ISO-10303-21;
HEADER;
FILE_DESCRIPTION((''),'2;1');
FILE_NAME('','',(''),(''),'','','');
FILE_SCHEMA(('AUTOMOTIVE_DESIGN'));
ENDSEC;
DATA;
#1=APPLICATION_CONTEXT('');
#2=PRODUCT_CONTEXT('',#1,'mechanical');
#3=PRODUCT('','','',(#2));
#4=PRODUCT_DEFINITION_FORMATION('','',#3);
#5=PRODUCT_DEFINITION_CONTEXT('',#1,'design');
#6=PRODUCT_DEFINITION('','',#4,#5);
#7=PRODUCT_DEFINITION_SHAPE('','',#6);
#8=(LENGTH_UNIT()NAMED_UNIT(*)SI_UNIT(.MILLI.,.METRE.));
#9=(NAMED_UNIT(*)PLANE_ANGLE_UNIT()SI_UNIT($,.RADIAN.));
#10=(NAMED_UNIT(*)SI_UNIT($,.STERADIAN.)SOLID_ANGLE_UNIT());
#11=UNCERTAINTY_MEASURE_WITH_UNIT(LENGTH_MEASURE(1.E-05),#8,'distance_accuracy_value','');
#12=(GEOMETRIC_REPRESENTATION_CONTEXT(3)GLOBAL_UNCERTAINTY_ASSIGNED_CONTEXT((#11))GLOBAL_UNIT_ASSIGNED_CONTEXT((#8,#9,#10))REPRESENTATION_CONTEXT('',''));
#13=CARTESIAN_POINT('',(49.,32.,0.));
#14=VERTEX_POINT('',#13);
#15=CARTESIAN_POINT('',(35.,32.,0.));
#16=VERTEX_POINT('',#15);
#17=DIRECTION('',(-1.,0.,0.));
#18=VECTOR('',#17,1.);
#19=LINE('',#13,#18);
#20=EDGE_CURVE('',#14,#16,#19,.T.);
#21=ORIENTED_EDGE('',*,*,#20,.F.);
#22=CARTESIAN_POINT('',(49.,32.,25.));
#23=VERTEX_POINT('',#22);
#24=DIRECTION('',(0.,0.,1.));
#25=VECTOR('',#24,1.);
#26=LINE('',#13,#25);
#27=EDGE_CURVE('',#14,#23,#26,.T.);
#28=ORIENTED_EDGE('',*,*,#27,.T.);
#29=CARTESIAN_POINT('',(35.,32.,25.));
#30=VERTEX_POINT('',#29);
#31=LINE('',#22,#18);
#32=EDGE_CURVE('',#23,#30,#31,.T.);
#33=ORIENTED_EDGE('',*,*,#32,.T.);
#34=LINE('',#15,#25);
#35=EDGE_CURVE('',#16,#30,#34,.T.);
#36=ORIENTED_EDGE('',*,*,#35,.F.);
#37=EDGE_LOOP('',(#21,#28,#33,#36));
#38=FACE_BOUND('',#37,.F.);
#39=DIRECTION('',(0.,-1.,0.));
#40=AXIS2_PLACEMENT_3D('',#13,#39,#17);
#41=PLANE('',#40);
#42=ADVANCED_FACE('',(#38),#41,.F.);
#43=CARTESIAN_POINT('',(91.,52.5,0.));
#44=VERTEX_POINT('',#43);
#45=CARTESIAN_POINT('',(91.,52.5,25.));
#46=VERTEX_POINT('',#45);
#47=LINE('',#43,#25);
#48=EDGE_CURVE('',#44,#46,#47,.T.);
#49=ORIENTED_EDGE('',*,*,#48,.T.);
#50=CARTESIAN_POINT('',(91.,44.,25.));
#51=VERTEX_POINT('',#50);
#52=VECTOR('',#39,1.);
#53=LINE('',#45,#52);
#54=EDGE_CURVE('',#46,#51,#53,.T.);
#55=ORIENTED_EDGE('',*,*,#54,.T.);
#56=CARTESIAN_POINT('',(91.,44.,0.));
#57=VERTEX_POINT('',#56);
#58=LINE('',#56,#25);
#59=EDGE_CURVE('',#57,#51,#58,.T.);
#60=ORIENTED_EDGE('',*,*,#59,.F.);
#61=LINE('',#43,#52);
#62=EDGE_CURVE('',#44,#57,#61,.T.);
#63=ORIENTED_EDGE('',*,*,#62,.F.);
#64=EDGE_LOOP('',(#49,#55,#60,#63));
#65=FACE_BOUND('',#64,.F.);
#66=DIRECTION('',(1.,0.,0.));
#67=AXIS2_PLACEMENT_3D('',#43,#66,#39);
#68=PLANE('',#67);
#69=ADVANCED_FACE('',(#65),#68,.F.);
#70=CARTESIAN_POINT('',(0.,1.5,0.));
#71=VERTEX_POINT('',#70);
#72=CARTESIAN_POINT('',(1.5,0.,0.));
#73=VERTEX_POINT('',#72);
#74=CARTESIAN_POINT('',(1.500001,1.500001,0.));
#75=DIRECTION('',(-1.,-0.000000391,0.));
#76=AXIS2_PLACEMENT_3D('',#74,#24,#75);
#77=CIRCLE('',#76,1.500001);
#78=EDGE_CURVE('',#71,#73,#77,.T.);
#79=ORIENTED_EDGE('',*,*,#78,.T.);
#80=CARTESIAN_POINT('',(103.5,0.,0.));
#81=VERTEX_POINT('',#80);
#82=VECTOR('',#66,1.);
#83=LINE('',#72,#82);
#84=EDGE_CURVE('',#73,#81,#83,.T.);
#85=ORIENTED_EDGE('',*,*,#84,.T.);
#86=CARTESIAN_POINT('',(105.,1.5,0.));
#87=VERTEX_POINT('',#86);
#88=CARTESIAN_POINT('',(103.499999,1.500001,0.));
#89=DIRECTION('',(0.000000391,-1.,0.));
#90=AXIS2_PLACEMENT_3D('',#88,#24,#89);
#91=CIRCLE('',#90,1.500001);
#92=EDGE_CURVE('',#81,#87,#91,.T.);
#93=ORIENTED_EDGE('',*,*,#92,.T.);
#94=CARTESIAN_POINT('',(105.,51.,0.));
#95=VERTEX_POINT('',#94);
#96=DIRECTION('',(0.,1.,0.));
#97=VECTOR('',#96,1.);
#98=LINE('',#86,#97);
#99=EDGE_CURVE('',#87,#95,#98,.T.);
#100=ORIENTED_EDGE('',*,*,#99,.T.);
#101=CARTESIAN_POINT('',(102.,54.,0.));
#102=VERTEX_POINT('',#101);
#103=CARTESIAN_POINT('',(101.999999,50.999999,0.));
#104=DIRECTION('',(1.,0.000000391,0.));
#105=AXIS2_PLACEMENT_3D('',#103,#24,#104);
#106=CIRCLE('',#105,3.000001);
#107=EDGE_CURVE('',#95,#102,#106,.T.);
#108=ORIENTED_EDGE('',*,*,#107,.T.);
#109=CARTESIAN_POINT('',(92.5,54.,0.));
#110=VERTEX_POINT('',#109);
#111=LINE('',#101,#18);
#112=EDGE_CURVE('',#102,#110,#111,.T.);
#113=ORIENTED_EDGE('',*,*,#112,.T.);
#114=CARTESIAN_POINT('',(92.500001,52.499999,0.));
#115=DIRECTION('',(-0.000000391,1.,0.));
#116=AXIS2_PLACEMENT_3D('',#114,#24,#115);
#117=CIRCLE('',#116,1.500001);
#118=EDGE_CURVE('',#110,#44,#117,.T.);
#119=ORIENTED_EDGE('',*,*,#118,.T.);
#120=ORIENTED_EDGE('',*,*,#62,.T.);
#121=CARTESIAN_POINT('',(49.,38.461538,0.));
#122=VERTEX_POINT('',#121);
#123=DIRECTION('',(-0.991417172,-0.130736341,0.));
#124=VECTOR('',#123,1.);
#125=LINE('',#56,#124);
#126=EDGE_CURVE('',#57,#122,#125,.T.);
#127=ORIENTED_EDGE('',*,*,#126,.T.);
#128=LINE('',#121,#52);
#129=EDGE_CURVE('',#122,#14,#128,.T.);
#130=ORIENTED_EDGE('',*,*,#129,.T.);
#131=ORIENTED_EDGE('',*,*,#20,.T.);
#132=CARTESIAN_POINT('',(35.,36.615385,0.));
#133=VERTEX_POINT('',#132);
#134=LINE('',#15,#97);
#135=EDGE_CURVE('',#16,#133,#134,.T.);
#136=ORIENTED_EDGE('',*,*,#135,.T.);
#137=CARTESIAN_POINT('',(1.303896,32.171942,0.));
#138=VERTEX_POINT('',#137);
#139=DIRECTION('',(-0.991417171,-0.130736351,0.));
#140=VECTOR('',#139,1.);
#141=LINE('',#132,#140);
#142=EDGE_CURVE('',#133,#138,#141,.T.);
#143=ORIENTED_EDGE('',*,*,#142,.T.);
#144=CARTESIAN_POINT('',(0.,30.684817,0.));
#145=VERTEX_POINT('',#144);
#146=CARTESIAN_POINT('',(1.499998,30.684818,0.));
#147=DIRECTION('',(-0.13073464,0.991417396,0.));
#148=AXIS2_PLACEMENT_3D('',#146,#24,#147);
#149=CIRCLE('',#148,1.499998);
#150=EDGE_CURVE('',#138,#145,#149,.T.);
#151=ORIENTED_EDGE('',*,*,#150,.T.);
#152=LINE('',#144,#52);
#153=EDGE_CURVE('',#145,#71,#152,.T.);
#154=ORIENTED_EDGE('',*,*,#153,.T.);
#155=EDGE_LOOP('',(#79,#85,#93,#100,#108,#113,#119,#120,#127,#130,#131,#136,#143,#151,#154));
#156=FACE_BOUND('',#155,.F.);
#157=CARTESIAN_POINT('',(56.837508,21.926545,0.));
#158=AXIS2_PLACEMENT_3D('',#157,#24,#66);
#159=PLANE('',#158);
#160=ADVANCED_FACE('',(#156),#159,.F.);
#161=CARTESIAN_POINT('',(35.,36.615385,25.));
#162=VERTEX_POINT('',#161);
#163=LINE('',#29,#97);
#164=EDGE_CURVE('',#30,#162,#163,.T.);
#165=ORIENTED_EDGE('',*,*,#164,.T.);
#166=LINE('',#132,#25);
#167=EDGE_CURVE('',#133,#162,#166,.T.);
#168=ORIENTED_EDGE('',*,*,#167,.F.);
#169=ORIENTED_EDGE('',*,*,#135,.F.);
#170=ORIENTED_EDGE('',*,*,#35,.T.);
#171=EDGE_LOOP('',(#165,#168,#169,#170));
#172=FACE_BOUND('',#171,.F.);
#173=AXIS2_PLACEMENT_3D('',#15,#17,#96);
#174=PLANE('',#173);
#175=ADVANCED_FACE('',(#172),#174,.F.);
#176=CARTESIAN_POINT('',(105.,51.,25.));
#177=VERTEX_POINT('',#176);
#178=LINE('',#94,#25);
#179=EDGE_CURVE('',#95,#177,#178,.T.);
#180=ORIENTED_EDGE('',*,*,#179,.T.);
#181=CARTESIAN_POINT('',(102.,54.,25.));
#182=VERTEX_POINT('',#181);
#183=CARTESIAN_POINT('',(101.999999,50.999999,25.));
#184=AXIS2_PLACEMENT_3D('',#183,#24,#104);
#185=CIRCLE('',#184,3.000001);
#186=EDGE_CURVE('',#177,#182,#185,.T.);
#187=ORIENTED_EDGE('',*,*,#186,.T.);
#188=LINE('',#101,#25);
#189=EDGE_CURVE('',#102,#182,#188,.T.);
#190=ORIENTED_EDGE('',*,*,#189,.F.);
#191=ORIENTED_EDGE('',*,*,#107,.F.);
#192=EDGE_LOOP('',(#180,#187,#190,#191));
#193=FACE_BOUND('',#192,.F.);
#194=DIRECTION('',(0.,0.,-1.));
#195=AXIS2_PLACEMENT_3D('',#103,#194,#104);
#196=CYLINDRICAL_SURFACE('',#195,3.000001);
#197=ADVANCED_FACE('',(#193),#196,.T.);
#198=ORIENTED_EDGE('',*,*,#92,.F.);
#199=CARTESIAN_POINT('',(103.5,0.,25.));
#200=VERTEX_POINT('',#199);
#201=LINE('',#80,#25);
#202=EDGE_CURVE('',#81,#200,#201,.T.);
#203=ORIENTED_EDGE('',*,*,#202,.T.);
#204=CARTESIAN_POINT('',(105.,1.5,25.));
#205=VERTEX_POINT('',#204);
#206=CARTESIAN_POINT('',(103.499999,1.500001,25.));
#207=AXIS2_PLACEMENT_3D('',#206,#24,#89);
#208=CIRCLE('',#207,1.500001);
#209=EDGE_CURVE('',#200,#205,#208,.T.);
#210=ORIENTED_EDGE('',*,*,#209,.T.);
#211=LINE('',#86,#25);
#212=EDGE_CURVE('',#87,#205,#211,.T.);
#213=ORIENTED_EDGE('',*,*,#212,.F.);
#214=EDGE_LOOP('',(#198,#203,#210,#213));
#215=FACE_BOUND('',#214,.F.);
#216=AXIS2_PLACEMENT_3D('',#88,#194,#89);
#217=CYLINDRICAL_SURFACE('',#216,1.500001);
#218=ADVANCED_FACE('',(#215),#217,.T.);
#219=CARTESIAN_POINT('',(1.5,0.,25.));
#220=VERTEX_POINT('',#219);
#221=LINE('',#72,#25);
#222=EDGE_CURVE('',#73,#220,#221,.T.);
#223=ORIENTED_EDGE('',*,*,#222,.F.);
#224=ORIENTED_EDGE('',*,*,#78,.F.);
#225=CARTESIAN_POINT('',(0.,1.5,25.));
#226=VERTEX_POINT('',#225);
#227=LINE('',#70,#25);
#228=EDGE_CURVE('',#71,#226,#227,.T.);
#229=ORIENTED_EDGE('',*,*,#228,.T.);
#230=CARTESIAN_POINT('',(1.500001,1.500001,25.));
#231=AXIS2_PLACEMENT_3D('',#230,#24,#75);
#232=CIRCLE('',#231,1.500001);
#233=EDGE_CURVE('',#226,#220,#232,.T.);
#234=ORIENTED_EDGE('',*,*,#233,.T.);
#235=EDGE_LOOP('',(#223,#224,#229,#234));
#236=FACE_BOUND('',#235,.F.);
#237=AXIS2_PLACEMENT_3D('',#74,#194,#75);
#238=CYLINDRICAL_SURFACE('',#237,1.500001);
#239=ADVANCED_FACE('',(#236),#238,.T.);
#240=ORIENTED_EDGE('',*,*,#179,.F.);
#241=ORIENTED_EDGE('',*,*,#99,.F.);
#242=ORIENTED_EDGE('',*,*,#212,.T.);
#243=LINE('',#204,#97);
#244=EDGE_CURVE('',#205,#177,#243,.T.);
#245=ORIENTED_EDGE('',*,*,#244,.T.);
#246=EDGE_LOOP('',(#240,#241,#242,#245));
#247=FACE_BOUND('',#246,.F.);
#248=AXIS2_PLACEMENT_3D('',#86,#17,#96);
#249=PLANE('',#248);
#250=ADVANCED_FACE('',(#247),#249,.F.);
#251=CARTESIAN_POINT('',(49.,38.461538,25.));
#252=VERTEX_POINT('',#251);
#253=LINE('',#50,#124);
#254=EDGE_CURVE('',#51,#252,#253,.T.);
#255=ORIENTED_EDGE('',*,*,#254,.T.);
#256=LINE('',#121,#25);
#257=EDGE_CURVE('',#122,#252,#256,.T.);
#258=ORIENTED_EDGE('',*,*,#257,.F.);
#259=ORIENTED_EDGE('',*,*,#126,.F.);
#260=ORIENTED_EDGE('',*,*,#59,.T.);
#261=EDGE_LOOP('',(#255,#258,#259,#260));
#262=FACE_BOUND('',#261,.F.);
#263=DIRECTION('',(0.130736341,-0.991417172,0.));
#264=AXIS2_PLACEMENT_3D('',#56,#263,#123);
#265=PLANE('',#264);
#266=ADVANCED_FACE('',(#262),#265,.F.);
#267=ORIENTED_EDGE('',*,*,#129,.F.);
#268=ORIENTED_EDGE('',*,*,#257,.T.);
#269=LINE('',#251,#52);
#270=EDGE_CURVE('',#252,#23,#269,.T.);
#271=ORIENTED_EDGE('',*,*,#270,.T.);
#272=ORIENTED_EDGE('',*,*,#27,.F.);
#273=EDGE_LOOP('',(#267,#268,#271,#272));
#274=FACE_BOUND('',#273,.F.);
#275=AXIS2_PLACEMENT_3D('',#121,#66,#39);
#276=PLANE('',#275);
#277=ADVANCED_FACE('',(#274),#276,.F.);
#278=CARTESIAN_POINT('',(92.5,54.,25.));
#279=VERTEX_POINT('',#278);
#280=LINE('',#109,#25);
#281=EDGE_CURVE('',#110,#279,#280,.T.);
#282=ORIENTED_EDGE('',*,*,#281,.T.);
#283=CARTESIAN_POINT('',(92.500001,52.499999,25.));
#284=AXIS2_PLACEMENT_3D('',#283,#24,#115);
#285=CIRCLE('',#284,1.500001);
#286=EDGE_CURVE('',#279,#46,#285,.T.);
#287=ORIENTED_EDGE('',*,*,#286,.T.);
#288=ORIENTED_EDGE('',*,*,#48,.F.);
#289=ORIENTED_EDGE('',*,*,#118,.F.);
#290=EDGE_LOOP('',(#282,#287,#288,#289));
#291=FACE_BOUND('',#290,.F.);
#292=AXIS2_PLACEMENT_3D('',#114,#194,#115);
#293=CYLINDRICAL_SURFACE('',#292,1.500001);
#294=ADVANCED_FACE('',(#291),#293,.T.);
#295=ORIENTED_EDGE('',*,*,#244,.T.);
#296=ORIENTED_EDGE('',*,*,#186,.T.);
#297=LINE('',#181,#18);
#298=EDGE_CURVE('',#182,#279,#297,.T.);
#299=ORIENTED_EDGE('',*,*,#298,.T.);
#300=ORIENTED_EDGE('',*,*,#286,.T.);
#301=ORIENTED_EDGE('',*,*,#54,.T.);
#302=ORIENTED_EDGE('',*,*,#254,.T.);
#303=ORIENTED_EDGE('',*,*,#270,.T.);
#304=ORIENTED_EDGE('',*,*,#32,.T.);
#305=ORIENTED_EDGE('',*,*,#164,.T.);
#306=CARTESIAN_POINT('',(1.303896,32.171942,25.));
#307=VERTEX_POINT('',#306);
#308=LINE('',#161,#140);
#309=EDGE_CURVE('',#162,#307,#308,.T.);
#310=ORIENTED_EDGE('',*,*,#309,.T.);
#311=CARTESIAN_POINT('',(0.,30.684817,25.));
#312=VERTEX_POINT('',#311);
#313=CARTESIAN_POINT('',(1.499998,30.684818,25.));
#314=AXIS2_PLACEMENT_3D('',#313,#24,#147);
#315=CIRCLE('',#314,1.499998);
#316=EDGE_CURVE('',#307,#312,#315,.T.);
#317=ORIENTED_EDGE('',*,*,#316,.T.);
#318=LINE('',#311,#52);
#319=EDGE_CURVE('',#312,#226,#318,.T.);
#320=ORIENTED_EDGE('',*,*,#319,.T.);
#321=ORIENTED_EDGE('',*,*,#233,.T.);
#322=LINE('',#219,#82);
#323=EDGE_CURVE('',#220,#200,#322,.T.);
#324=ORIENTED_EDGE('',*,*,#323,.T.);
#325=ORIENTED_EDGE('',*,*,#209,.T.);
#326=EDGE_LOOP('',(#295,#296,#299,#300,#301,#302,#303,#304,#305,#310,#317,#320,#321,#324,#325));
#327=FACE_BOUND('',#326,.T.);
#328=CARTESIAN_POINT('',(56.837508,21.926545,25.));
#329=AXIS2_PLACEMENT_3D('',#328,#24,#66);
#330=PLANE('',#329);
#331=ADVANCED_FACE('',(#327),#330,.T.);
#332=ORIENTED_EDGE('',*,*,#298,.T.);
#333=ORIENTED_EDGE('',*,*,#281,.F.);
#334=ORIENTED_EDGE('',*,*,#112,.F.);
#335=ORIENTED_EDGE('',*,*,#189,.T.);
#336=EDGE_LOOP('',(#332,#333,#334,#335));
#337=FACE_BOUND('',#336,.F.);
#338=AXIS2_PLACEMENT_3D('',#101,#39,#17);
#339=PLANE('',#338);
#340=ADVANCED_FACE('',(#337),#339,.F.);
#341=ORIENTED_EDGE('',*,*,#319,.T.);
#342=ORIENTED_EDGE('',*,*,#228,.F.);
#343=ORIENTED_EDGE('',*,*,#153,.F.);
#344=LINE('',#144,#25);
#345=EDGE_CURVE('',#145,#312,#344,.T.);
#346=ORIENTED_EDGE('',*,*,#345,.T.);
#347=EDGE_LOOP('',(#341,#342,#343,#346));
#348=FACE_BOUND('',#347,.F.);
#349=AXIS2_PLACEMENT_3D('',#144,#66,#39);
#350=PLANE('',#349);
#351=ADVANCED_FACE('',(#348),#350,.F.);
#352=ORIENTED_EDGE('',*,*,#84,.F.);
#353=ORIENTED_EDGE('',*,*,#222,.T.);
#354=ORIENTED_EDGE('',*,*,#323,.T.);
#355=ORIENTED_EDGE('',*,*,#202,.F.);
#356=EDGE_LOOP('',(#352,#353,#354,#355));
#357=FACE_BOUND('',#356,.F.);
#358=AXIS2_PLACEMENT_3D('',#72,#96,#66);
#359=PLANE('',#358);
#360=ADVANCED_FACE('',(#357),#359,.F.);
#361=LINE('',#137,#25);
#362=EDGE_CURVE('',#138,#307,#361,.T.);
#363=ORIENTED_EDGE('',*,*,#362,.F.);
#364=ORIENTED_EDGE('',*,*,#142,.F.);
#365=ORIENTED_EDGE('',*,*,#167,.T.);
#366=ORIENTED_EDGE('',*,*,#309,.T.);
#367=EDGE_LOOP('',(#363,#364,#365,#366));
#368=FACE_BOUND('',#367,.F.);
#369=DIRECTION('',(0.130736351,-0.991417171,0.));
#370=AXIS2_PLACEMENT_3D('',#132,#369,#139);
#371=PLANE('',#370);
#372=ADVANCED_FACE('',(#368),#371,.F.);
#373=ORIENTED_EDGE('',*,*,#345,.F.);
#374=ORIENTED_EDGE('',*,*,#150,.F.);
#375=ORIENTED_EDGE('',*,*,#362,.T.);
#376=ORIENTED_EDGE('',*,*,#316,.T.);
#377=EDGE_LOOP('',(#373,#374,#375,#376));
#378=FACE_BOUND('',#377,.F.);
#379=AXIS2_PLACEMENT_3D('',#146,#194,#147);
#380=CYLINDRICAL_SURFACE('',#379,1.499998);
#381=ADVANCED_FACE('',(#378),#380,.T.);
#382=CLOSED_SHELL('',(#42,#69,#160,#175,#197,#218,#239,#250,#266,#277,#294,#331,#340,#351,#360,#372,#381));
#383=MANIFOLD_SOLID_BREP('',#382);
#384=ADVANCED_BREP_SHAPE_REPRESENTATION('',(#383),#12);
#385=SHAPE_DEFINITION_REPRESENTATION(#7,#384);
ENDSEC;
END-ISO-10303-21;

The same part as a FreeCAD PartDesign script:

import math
import FreeCAD as App
import Part
import Sketcher
from FreeCAD import Vector
Q = App.Units.Quantity

doc = App.newDocument("Part")
body = doc.addObject("PartDesign::Body", "Body")

# Sketch on XY plane
sketch1 = body.newObject("Sketcher::SketchObject", "Sketch")
sketch1.AttachmentSupport = (doc.getObject("XY_Plane"), [""])
sketch1.MapMode = "FlatFace"
sketch1.addGeometry([
    Part.ArcOfCircle(Part.Circle(Vector(1.500001, 1.500001, 0), Vector(0, 0, 1), 1.500001), math.radians(-179.999978), math.radians(-90.000022)),  # 0
    Part.LineSegment(Vector(1.5, 0, 0), Vector(103.5, 0, 0)),  # 1
    Part.ArcOfCircle(Part.Circle(Vector(103.499999, 1.500001, 0), Vector(0, 0, 1), 1.500001), math.radians(-89.999978), math.radians(-0.000022)),  # 2
    Part.LineSegment(Vector(105, 1.5, 0), Vector(105, 51, 0)),  # 3
    Part.ArcOfCircle(Part.Circle(Vector(101.999999, 50.999999, 0), Vector(0, 0, 1), 3.000001), math.radians(0.000022), math.radians(89.999978)),  # 4
    Part.LineSegment(Vector(102, 54, 0), Vector(92.5, 54, 0)),  # 5
    Part.ArcOfCircle(Part.Circle(Vector(92.500001, 52.499999, 0), Vector(0, 0, 1), 1.500001), math.radians(90.000022), math.radians(179.999978)),  # 6
    Part.LineSegment(Vector(91, 52.5, 0), Vector(91, 44, 0)),  # 7
    Part.LineSegment(Vector(91, 44, 0), Vector(49, 38.461538, 0)),  # 8
    Part.LineSegment(Vector(49, 38.461538, 0), Vector(49, 32, 0)),  # 9
    Part.LineSegment(Vector(49, 32, 0), Vector(35, 32, 0)),  # 10
    Part.LineSegment(Vector(35, 32, 0), Vector(35, 36.615385, 0)),  # 11
    Part.LineSegment(Vector(35, 36.615385, 0), Vector(1.303896, 32.171942, 0)),  # 12
    Part.ArcOfCircle(Part.Circle(Vector(1.499998, 30.684818, 0), Vector(0, 0, 1), 1.499998), math.radians(97.512046), math.radians(180.000047)),  # 13
    Part.LineSegment(Vector(0, 30.684817, 0), Vector(0, 1.5, 0)),  # 14
], False)
sketch1.addConstraint([
    Sketcher.Constraint("Tangent", 0, 2, 1, 1),
    Sketcher.Constraint("Tangent", 1, 2, 2, 1),
    Sketcher.Constraint("Tangent", 2, 2, 3, 1),
    Sketcher.Constraint("Tangent", 3, 2, 4, 1),
    Sketcher.Constraint("Tangent", 4, 2, 5, 1),
    Sketcher.Constraint("Tangent", 5, 2, 6, 1),
    Sketcher.Constraint("Tangent", 6, 2, 7, 1),
    Sketcher.Constraint("Coincident", 7, 2, 8, 1),
    Sketcher.Constraint("Coincident", 8, 2, 9, 1),
    Sketcher.Constraint("Coincident", 9, 2, 10, 1),
    Sketcher.Constraint("Coincident", 10, 2, 11, 1),
    Sketcher.Constraint("Coincident", 11, 2, 12, 1),
    Sketcher.Constraint("Tangent", 12, 2, 13, 1),
    Sketcher.Constraint("Tangent", 13, 2, 14, 1),
    Sketcher.Constraint("Tangent", 14, 2, 0, 1),
    Sketcher.Constraint("Horizontal", 1),
    Sketcher.Constraint("Vertical", 3),
    Sketcher.Constraint("Horizontal", 5),
    Sketcher.Constraint("Vertical", 7),
    Sketcher.Constraint("Vertical", 9),
    Sketcher.Constraint("Horizontal", 10),
    Sketcher.Constraint("Vertical", 11),
    Sketcher.Constraint("Vertical", 14),
    Sketcher.Constraint("Equal", 0, 2),
    Sketcher.Constraint("Equal", 2, 6),
    Sketcher.Constraint("PointOnObject", 0, 2, -1),
    Sketcher.Constraint("PointOnObject", 13, 2, -2),
    Sketcher.Constraint("Parallel", 8, 12),
    Sketcher.Constraint("Radius", 4, Q("3.000001 mm")),
    Sketcher.Constraint("Radius", 0, Q("1.500001 mm")),
    Sketcher.Constraint("DistanceX", 1, 1, 1, 2, Q("102 mm")),
    Sketcher.Constraint("DistanceX", 10, 2, 10, 1, Q("14 mm")),
    Sketcher.Constraint("DistanceX", 5, 2, 5, 1, Q("9.5 mm")),
    Sketcher.Constraint("DistanceY", 3, 1, 3, 2, Q("49.5 mm")),
    Sketcher.Constraint("DistanceY", 7, 2, 7, 1, Q("8.5 mm")),
    Sketcher.Constraint("DistanceX", -1, 1, 8, 2, Q("49 mm")),
    Sketcher.Constraint("DistanceY", -1, 1, 9, 2, Q("32 mm")),
    Sketcher.Constraint("DistanceX", 13, 3, 2, 3, Q("102.000002 mm")),
    Sketcher.Constraint("Distance", 8, Q("42.363599 mm")),
    Sketcher.Constraint("DistanceY", 11, 1, 11, 2, Q("4.615385 mm")),
])
pad1 = body.newObject("PartDesign::Pad", "Pad")
pad1.Profile = sketch1
pad1.Length = 25

doc.recompute()
